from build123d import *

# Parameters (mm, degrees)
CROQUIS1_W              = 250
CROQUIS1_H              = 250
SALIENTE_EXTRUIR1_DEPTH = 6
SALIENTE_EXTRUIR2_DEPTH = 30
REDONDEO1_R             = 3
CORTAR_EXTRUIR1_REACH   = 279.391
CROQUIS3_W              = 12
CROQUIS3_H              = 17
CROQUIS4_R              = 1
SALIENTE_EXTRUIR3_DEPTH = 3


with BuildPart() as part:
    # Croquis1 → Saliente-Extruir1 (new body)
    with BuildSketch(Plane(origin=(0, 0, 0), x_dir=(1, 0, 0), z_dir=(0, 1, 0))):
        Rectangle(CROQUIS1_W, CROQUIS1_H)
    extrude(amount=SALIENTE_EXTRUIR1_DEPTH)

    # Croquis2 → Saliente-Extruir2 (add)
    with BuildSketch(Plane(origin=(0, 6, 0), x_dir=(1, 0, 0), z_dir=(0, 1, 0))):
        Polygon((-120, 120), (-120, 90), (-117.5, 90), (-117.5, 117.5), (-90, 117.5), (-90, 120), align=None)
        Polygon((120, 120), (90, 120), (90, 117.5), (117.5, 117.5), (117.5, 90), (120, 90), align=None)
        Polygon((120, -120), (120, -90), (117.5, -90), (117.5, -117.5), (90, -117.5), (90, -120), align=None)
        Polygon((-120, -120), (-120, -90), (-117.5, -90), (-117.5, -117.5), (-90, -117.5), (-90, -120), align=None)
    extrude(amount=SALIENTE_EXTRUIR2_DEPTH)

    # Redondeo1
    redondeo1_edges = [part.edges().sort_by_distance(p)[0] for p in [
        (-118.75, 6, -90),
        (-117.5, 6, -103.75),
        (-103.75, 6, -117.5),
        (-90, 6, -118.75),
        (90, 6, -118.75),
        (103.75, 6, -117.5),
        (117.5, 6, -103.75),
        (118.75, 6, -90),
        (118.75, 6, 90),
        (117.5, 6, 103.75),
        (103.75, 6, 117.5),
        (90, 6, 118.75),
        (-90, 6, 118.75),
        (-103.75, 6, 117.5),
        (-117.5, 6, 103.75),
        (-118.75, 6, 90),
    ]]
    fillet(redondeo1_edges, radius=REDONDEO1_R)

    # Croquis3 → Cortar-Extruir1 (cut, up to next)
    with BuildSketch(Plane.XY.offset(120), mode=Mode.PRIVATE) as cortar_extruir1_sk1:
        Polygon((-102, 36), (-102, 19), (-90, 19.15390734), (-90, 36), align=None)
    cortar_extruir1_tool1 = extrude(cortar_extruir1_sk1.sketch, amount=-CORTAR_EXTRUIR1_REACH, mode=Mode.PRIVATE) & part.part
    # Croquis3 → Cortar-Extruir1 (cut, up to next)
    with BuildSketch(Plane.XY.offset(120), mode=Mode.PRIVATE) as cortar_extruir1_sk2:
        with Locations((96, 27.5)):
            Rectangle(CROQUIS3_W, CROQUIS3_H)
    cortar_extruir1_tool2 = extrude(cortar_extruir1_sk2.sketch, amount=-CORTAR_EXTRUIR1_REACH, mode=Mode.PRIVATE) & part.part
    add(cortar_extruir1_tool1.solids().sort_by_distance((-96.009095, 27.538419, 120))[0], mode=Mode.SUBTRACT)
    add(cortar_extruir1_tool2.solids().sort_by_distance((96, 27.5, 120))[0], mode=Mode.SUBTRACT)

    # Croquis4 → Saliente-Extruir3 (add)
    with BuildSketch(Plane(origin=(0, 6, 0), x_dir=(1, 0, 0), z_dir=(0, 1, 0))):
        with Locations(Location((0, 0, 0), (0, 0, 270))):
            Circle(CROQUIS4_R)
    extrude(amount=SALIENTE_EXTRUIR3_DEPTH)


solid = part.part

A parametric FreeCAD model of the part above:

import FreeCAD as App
import Part
import Sketcher

V = App.Vector
Q = App.Units.Quantity


def edges_at(feature, points):
    """Names of the edges that pass closest to the given points."""
    edges = feature.Shape.Edges
    near = lambda p: min(range(len(edges)), key=lambda i: edges[i].distToShape(Part.Vertex(*p))[0])
    return sorted({f"Edge{near(p) + 1}" for p in points})

doc = App.newDocument("Part")
body = doc.addObject("PartDesign::Body", "Body")

# Sketch on XZ plane
sketch1 = doc.addObject("Sketcher::SketchObject", "Sketch")
body.addObject(sketch1)
sketch1.AttachmentSupport = (doc.XZ_Plane, [""])
sketch1.MapMode = "FlatFace"
sketch1.addGeometry(Part.LineSegment(V(-125, -125, 0), V(-125, 125, 0)), False)
sketch1.addGeometry(Part.LineSegment(V(-125, 125, 0), V(125, 125, 0)), False)
sketch1.addGeometry(Part.LineSegment(V(125, 125, 0), V(125, -125, 0)), False)
sketch1.addGeometry(Part.LineSegment(V(125, -125, 0), V(-125, -125, 0)), False)
sketch1.addConstraint(Sketcher.Constraint("Coincident", 0, 2, 1, 1))
sketch1.addConstraint(Sketcher.Constraint("Coincident", 1, 2, 2, 1))
sketch1.addConstraint(Sketcher.Constraint("Coincident", 2, 2, 3, 1))
sketch1.addConstraint(Sketcher.Constraint("Coincident", 3, 2, 0, 1))
sketch1.addConstraint(Sketcher.Constraint("Vertical", 0))
sketch1.addConstraint(Sketcher.Constraint("Horizontal", 1))
sketch1.addConstraint(Sketcher.Constraint("Vertical", 2))
sketch1.addConstraint(Sketcher.Constraint("Horizontal", 3))
sketch1.addConstraint(Sketcher.Constraint("Symmetric", 0, 2, 2, 2, -1, 1))
sketch1.addConstraint(Sketcher.Constraint("Equal", 3, 0))
sketch1.addConstraint(Sketcher.Constraint("DistanceX", 1, 1, 1, 2, Q("250 mm")))
pad1 = doc.addObject("PartDesign::Pad", "Pad")
body.addObject(pad1)
pad1.Profile = sketch1
pad1.Length = 6
pad1.Reversed = True

# Sketch on XZ plane
sketch2 = doc.addObject("Sketcher::SketchObject", "Sketch001")
body.addObject(sketch2)
sketch2.AttachmentSupport = (doc.XZ_Plane, [""])
sketch2.MapMode = "FlatFace"
sketch2.AttachmentOffset = App.Placement(V(0, 0, -6), App.Rotation())
sketch2.addGeometry(Part.LineSegment(V(-120, -120, 0), V(-120, -90, 0)), False)
sketch2.addGeometry(Part.LineSegment(V(-120, -90, 0), V(-117.5, -90, 0)), False)
sketch2.addGeometry(Part.LineSegment(V(-117.5, -90, 0), V(-117.5, -117.5, 0)), False)
sketch2.addGeometry(Part.LineSegment(V(-117.5, -117.5, 0), V(-90, -117.5, 0)), False)
sketch2.addGeometry(Part.LineSegment(V(-90, -117.5, 0), V(-90, -120, 0)), False)
sketch2.addGeometry(Part.LineSegment(V(-90, -120, 0), V(-120, -120, 0)), False)
sketch2.addGeometry(Part.LineSegment(V(120, -120, 0), V(90, -120, 0)), False)
sketch2.addGeometry(Part.LineSegment(V(90, -120, 0), V(90, -117.5, 0)), False)
sketch2.addGeometry(Part.LineSegment(V(90, -117.5, 0), V(117.5, -117.5, 0)), False)
sketch2.addGeometry(Part.LineSegment(V(117.5, -117.5, 0), V(117.5, -90, 0)), False)
sketch2.addGeometry(Part.LineSegment(V(117.5, -90, 0), V(120, -90, 0)), False)
sketch2.addGeometry(Part.LineSegment(V(120, -90, 0), V(120, -120, 0)), False)
sketch2.addGeometry(Part.LineSegment(V(120, 120, 0), V(120, 90, 0)), False)
sketch2.addGeometry(Part.LineSegment(V(120, 90, 0), V(117.5, 90, 0)), False)
sketch2.addGeometry(Part.LineSegment(V(117.5, 90, 0), V(117.5, 117.5, 0)), False)
sketch2.addGeometry(Part.LineSegment(V(117.5, 117.5, 0), V(90, 117.5, 0)), False)
sketch2.addGeometry(Part.LineSegment(V(90, 117.5, 0), V(90, 120, 0)), False)
sketch2.addGeometry(Part.LineSegment(V(90, 120, 0), V(120, 120, 0)), False)
sketch2.addGeometry(Part.LineSegment(V(-120, 90, 0), V(-120, 120, 0)), False)
sketch2.addGeometry(Part.LineSegment(V(-120, 120, 0), V(-90, 120, 0)), False)
sketch2.addGeometry(Part.LineSegment(V(-90, 120, 0), V(-90, 117.5, 0)), False)
sketch2.addGeometry(Part.LineSegment(V(-90, 117.5, 0), V(-117.5, 117.5, 0)), False)
sketch2.addGeometry(Part.LineSegment(V(-117.5, 117.5, 0), V(-117.5, 90, 0)), False)
sketch2.addGeometry(Part.LineSegment(V(-117.5, 90, 0), V(-120, 90, 0)), False)
sketch2.addConstraint(Sketcher.Constraint("Coincident", 0, 2, 1, 1))
sketch2.addConstraint(Sketcher.Constraint("Coincident", 1, 2, 2, 1))
sketch2.addConstraint(Sketcher.Constraint("Coincident", 2, 2, 3, 1))
sketch2.addConstraint(Sketcher.Constraint("Coincident", 3, 2, 4, 1))
sketch2.addConstraint(Sketcher.Constraint("Coincident", 4, 2, 5, 1))
sketch2.addConstraint(Sketcher.Constraint("Coincident", 5, 2, 0, 1))
sketch2.addConstraint(Sketcher.Constraint("Coincident", 6, 2, 7, 1))
sketch2.addConstraint(Sketcher.Constraint("Coincident", 7, 2, 8, 1))
sketch2.addConstraint(Sketcher.Constraint("Coincident", 8, 2, 9, 1))
sketch2.addConstraint(Sketcher.Constraint("Coincident", 9, 2, 10, 1))
sketch2.addConstraint(Sketcher.Constraint("Coincident", 10, 2, 11, 1))
sketch2.addConstraint(Sketcher.Constraint("Coincident", 11, 2, 6, 1))
sketch2.addConstraint(Sketcher.Constraint("Coincident", 12, 2, 13, 1))
sketch2.addConstraint(Sketcher.Constraint("Coincident", 13, 2, 14, 1))
sketch2.addConstraint(Sketcher.Constraint("Coincident", 14, 2, 15, 1))
sketch2.addConstraint(Sketcher.Constraint("Coincident", 15, 2, 16, 1))
sketch2.addConstraint(Sketcher.Constraint("Coincident", 16, 2, 17, 1))
sketch2.addConstraint(Sketcher.Constraint("Coincident", 17, 2, 12, 1))
sketch2.addConstraint(Sketcher.Constraint("Coincident", 18, 2, 19, 1))
sketch2.addConstraint(Sketcher.Constraint("Coincident", 19, 2, 20, 1))
sketch2.addConstraint(Sketcher.Constraint("Coincident", 20, 2, 21, 1))
sketch2.addConstraint(Sketcher.Constraint("Coincident", 21, 2, 22, 1))
sketch2.addConstraint(Sketcher.Constraint("Coincident", 22, 2, 23, 1))
sketch2.addConstraint(Sketcher.Constraint("Coincident", 23, 2, 18, 1))
sketch2.addConstraint(Sketcher.Constraint("Vertical", 0))
sketch2.addConstraint(Sketcher.Constraint("Horizontal", 1))
sketch2.addConstraint(Sketcher.Constraint("Vertical", 2))
sketch2.addConstraint(Sketcher.Constraint("Horizontal", 3))
sketch2.addConstraint(Sketcher.Constraint("Vertical", 4))
sketch2.addConstraint(Sketcher.Constraint("Horizontal", 5))
sketch2.addConstraint(Sketcher.Constraint("Horizontal", 6))
sketch2.addConstraint(Sketcher.Constraint("Vertical", 7))
sketch2.addConstraint(Sketcher.Constraint("Horizontal", 8))
sketch2.addConstraint(Sketcher.Constraint("Vertical", 9))
sketch2.addConstraint(Sketcher.Constraint("Horizontal", 10))
sketch2.addConstraint(Sketcher.Constraint("Vertical", 11))
sketch2.addConstraint(Sketcher.Constraint("Vertical", 12))
sketch2.addConstraint(Sketcher.Constraint("Horizontal", 13))
sketch2.addConstraint(Sketcher.Constraint("Vertical", 14))
sketch2.addConstraint(Sketcher.Constraint("Horizontal", 15))
sketch2.addConstraint(Sketcher.Constraint("Vertical", 16))
sketch2.addConstraint(Sketcher.Constraint("Horizontal", 17))
sketch2.addConstraint(Sketcher.Constraint("Vertical", 18))
sketch2.addConstraint(Sketcher.Constraint("Horizontal", 19))
sketch2.addConstraint(Sketcher.Constraint("Vertical", 20))
sketch2.addConstraint(Sketcher.Constraint("Horizontal", 21))
sketch2.addConstraint(Sketcher.Constraint("Vertical", 22))
sketch2.addConstraint(Sketcher.Constraint("Horizontal", 23))
sketch2.addConstraint(Sketcher.Constraint("Symmetric", 0, 2, 12, 2, -1, 1))
sketch2.addConstraint(Sketcher.Constraint("Symmetric", 2, 2, 14, 2, -1, 1))
sketch2.addConstraint(Sketcher.Constraint("Symmetric", 4, 2, 16, 2, -1, 1))
sketch2.addConstraint(Sketcher.Constraint("Symmetric", 11, 2, 18, 2, -1, 1))
sketch2.addConstraint(Sketcher.Constraint("Symmetric", 7, 2, 20, 2, -1, 1))
sketch2.addConstraint(Sketcher.Constraint("Symmetric", 9, 2, 22, 2, -1, 1))
sketch2.addConstraint(Sketcher.Constraint("Symmetric", 4, 2, 6, 2, -2))
sketch2.addConstraint(Sketcher.Constraint("Symmetric", 2, 2, 8, 2, -2))
sketch2.addConstraint(Sketcher.Constraint("Symmetric", 0, 2, 10, 2, -2))
sketch2.addConstraint(Sketcher.Constraint("Equal", 19, 0))
sketch2.addConstraint(Sketcher.Constraint("Equal", 21, 2))
sketch2.addConstraint(Sketcher.Constraint("DistanceX", 5, 2, 5, 1, Q("30 mm")))
sketch2.addConstraint(Sketcher.Constraint("DistanceX", 1, 1, 1, 2, Q("2.5 mm")))
sketch2.addConstraint(Sketcher.Constraint("DistanceX", 0, 2, -1, 1, Q("120 mm")))
sketch2.addConstraint(Sketcher.Constraint("DistanceY", 0, 2, -1, 1, Q("90 mm")))
pad2 = doc.addObject("PartDesign::Pad", "Pad001")
body.addObject(pad2)
pad2.Profile = sketch2
pad2.Length = 30
pad2.Reversed = True
doc.recompute()

fillet = doc.addObject("PartDesign::Fillet", "Fillet")
body.addObject(fillet)
fillet.Base = (pad2, edges_at(pad2, [
    (-118.75, 6, -90),
    (-117.5, 6, -103.75),
    (-103.75, 6, -117.5),
    (-90, 6, -118.75),
    (90, 6, -118.75),
    (103.75, 6, -117.5),
    (117.5, 6, -103.75),
    (118.75, 6, -90),
    (118.75, 6, 90),
    (117.5, 6, 103.75),
    (103.75, 6, 117.5),
    (90, 6, 118.75),
    (-90, 6, 118.75),
    (-103.75, 6, 117.5),
    (-117.5, 6, 103.75),
    (-118.75, 6, 90),
]))
fillet.Radius = 3

# Sketch on XY plane
sketch3 = doc.addObject("Sketcher::SketchObject", "Sketch002")
body.addObject(sketch3)
sketch3.AttachmentSupport = (doc.XY_Plane, [""])
sketch3.MapMode = "FlatFace"
sketch3.AttachmentOffset = App.Placement(V(0, 0, 120), App.Rotation())
sketch3.addGeometry(Part.LineSegment(V(-102, 36, 0), V(-102, 19, 0)), False)
sketch3.addGeometry(Part.LineSegment(V(-102, 19, 0), V(-90, 19, 0)), False)
sketch3.addGeometry(Part.LineSegment(V(-90, 19, 0), V(-90, 36, 0)), False)
sketch3.addGeometry(Part.LineSegment(V(-90, 36, 0), V(-102, 36, 0)), False)
sketch3.addConstraint(Sketcher.Constraint("Coincident", 0, 2, 1, 1))
sketch3.addConstraint(Sketcher.Constraint("Coincident", 1, 2, 2, 1))
sketch3.addConstraint(Sketcher.Constraint("Coincident", 2, 2, 3, 1))
sketch3.addConstraint(Sketcher.Constraint("Coincident", 3, 2, 0, 1))
sketch3.addConstraint(Sketcher.Constraint("Vertical", 0))
sketch3.addConstraint(Sketcher.Constraint("Vertical", 2))
sketch3.addConstraint(Sketcher.Constraint("Horizontal", 3))
sketch3.addConstraint(Sketcher.Constraint("DistanceX", 3, 2, 3, 1, Q("12 mm")))
sketch3.addConstraint(Sketcher.Constraint("DistanceY", 0, 2, 0, 1, Q("17 mm")))
sketch3.addConstraint(Sketcher.Constraint("DistanceX", 0, 2, -1, 1, Q("102 mm")))
sketch3.addConstraint(Sketcher.Constraint("DistanceY", -1, 1, 0, 2, Q("19 mm")))
sketch3.addConstraint(Sketcher.Constraint("DistanceY", 2, 1, 2, 2, Q("16.846093 mm")))
pocket1 = doc.addObject("PartDesign::Pocket", "Pocket")
body.addObject(pocket1)
pocket1.Profile = sketch3
pocket1.Type = "UpToFirst"

# Sketch on XY plane
sketch4 = doc.addObject("Sketcher::SketchObject", "Sketch003")
body.addObject(sketch4)
sketch4.AttachmentSupport = (doc.XY_Plane, [""])
sketch4.MapMode = "FlatFace"
sketch4.AttachmentOffset = App.Placement(V(0, 0, 120), App.Rotation())
sketch4.addGeometry(Part.LineSegment(V(90, 36, 0), V(90, 19, 0)), False)
sketch4.addGeometry(Part.LineSegment(V(90, 19, 0), V(102, 19, 0)), False)
sketch4.addGeometry(Part.LineSegment(V(102, 19, 0), V(102, 36, 0)), False)
sketch4.addGeometry(Part.LineSegment(V(102, 36, 0), V(90, 36, 0)), False)
sketch4.addConstraint(Sketcher.Constraint("Coincident", 0, 2, 1, 1))
sketch4.addConstraint(Sketcher.Constraint("Coincident", 1, 2, 2, 1))
sketch4.addConstraint(Sketcher.Constraint("Coincident", 2, 2, 3, 1))
sketch4.addConstraint(Sketcher.Constraint("Coincident", 3, 2, 0, 1))
sketch4.addConstraint(Sketcher.Constraint("Vertical", 0))
sketch4.addConstraint(Sketcher.Constraint("Horizontal", 1))
sketch4.addConstraint(Sketcher.Constraint("Vertical", 2))
sketch4.addConstraint(Sketcher.Constraint("Horizontal", 3))
sketch4.addConstraint(Sketcher.Constraint("DistanceX", 1, 1, 1, 2, Q("12 mm")))
sketch4.addConstraint(Sketcher.Constraint("DistanceY", 0, 2, 0, 1, Q("17 mm")))
sketch4.addConstraint(Sketcher.Constraint("DistanceX", -1, 1, 0, 2, Q("90 mm")))
sketch4.addConstraint(Sketcher.Constraint("DistanceY", -1, 1, 0, 2, Q("19 mm")))
pocket2 = doc.addObject("PartDesign::Pocket", "Pocket001")
body.addObject(pocket2)
pocket2.Profile = sketch4
pocket2.Type = "UpToFirst"

# Sketch on XZ plane
sketch5 = doc.addObject("Sketcher::SketchObject", "Sketch004")
body.addObject(sketch5)
sketch5.AttachmentSupport = (doc.XZ_Plane, [""])
sketch5.MapMode = "FlatFace"
sketch5.AttachmentOffset = App.Placement(V(0, 0, -6), App.Rotation())
sketch5.addGeometry(Part.Circle(V(0, 0, 0), V(0, 0, 1), 1), False)
sketch5.addConstraint(Sketcher.Constraint("Coincident", 0, 3, -1, 1))
sketch5.addConstraint(Sketcher.Constraint("Diameter", 0, Q("2 mm")))
pad3 = doc.addObject("PartDesign::Pad", "Pad002")
body.addObject(pad3)
pad3.Profile = sketch5
pad3.Length = 3
pad3.Reversed = True

doc.recompute()
